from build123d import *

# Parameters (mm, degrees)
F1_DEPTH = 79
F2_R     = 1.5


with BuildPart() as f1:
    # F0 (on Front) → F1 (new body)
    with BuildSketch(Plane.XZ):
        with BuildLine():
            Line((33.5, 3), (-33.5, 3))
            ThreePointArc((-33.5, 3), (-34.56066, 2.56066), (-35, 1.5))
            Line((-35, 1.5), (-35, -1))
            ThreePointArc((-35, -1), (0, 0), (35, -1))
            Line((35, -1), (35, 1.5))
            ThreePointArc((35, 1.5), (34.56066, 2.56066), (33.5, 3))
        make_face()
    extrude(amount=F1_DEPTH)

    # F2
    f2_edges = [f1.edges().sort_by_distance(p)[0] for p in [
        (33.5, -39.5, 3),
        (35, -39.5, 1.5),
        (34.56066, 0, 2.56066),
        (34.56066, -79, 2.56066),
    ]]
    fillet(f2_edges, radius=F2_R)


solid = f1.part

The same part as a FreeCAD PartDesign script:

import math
import FreeCAD as App
import Part
import Sketcher
Q = App.Units.Quantity


def edges_at(feature, points):
    """Names of the edges that pass closest to the given points."""
    edges = feature.Shape.Edges
    near = lambda p: min(range(len(edges)), key=lambda i: edges[i].distToShape(Part.Vertex(*p))[0])
    return sorted({f"Edge{near(p) + 1}" for p in points})

doc = App.newDocument("Part")
body = doc.addObject("PartDesign::Body", "Body")

sketch1 = body.newObject("Sketcher::SketchObject", "Sketch")
sketch1.AttachmentSupport = (doc.getObject("XZ_Plane"), [""])
sketch1.MapMode = "FlatFace"
sketch1.addGeometry([
    Part.LineSegment(App.Vector(33.5, 3, 0), App.Vector(-33.5, 3, 0)),
    Part.ArcOfCircle(Part.Circle(App.Vector(-33.5, 1.5, 0), App.Vector(0, 0, 1), 1.5), math.radians(90), math.radians(180)),
    Part.LineSegment(App.Vector(-35, 1.5, 0), App.Vector(-35, -1, 0)),
    Part.ArcOfCircle(Part.Circle(App.Vector(0, -613, 0), App.Vector(0, 0, 1), 613), math.radians(86.73), math.radians(93.27)),
    Part.LineSegment(App.Vector(35, -1, 0), App.Vector(35, 1.5, 0)),
    Part.ArcOfCircle(Part.Circle(App.Vector(33.5, 1.5, 0), App.Vector(0, 0, 1), 1.5), math.radians(0), math.radians(90)),
], False)
sketch1.addConstraint([
    Sketcher.Constraint("Tangent", 0, 2, 1, 1),
    Sketcher.Constraint("Tangent", 1, 2, 2, 1),
    Sketcher.Constraint("Coincident", 2, 2, 3, 2),
    Sketcher.Constraint("Coincident", 3, 1, 4, 1),
    Sketcher.Constraint("Tangent", 4, 2, 5, 1),
    Sketcher.Constraint("Tangent", 5, 2, 0, 1),
    Sketcher.Constraint("Horizontal", 0),
    Sketcher.Constraint("Vertical", 2),
    Sketcher.Constraint("Vertical", 4),
    Sketcher.Constraint("Equal", 1, 5),
    Sketcher.Constraint("PointOnObject", 3, 3, -2),
    Sketcher.Constraint("Equal", 2, 4),
    Sketcher.Constraint("Radius", 3, Q("613 mm")),
    Sketcher.Constraint("Radius", 1, Q("1.500001 mm")),
    Sketcher.Constraint("DistanceX", 0, 2, 0, 1, Q("67 mm")),
    Sketcher.Constraint("DistanceY", 2, 2, 2, 1, Q("2.5 mm")),
    Sketcher.Constraint("DistanceY", 3, 3, -1, 1, Q("613 mm")),
])
pad1 = body.newObject("PartDesign::Pad", "Pad")
pad1.Profile = sketch1
pad1.Length = 79
doc.recompute()

fillet = body.newObject("PartDesign::Fillet", "Fillet")
fillet.Base = (pad1, edges_at(pad1, [
    (33.5, -39.5, 3),
    (35, -39.5, 1.5),
    (34.561, 0, 2.561),
    (34.561, -79, 2.561),
]))
fillet.Radius = 1.5

doc.recompute()
